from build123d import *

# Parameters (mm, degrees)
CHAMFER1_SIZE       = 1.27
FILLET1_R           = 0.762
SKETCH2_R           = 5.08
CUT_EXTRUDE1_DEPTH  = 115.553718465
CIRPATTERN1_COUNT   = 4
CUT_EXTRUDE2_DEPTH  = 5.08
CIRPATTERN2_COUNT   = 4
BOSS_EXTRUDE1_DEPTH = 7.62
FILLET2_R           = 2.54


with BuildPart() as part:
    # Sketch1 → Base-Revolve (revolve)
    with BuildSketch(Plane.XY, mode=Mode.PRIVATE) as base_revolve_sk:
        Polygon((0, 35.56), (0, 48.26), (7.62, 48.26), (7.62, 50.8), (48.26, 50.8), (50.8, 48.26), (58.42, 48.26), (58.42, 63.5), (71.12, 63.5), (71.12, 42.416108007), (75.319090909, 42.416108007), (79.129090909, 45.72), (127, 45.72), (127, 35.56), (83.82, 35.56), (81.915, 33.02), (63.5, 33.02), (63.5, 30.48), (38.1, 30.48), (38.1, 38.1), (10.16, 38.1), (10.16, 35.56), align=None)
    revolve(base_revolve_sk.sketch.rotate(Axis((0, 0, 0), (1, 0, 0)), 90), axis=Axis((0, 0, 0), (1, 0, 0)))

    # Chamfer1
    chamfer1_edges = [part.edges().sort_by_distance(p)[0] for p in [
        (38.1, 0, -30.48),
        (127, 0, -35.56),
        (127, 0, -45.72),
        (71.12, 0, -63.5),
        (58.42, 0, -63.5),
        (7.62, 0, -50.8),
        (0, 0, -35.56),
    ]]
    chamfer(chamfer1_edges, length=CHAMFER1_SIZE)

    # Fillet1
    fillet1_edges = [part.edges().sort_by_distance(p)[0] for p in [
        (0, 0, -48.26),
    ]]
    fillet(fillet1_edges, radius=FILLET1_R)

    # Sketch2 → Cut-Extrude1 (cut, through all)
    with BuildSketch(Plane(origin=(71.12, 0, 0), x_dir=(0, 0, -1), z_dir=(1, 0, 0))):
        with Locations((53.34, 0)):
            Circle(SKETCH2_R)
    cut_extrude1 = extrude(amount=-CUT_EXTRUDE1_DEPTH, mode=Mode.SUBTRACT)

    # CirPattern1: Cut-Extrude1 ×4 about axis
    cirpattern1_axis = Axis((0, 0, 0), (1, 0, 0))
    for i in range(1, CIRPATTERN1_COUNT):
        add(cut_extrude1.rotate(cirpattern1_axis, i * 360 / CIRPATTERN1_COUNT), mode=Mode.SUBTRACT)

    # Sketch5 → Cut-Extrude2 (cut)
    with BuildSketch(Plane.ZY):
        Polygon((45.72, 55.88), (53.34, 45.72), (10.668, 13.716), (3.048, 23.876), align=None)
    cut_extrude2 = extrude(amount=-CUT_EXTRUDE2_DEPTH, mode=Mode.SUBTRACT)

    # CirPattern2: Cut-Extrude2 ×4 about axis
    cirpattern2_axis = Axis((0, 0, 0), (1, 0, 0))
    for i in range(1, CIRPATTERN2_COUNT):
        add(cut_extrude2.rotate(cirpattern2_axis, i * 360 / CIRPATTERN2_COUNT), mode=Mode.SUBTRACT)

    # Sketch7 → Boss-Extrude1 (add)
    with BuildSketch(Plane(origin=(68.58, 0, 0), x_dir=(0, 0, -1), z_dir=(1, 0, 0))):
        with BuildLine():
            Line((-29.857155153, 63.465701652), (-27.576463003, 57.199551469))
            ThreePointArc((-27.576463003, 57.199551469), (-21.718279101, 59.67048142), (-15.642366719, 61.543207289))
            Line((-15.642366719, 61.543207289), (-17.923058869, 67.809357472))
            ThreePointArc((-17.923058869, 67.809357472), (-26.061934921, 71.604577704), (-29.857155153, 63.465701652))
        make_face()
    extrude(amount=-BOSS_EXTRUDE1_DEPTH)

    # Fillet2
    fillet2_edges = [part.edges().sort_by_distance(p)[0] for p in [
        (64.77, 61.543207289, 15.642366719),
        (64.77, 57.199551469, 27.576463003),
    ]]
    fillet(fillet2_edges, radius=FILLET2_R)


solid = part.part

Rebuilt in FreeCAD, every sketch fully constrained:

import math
import FreeCAD as App
import Part
import Sketcher

V = App.Vector
Q = App.Units.Quantity


def edges_at(feature, points):
    """Names of the edges that pass closest to the given points."""
    edges = feature.Shape.Edges
    near = lambda p: min(range(len(edges)), key=lambda i: edges[i].distToShape(Part.Vertex(*p))[0])
    return sorted({f"Edge{near(p) + 1}" for p in points})


def add_polygon(sketch, points):
    """Adds a closed chain of lines whose ends are joined by coincident constraints."""
    first, n = sketch.GeometryCount, len(points)
    for a, b in zip(points, points[1:] + points[:1]):
        sketch.addGeometry(Part.LineSegment(App.Vector(*a, 0), App.Vector(*b, 0)), False)
    for i in range(n):
        sketch.addConstraint(Sketcher.Constraint("Coincident", first + i, 2, first + (i + 1) % n, 1))

doc = App.newDocument("Part")
params = doc.addObject("Spreadsheet::Sheet", "Params")
for row, (alias, value) in enumerate([
    ("sketch1_width", "1 in"),
    ("sketch1_width2", "0.4 in"),
    ("sketch1_width3", "1.1 in"),
    ("sketch1_width4", "1.7 in"),
    ("sketch1_width5", "0.5 in"),
    ("revolution_angle", "360 deg"),
    ("chamfer_size", "0.05 in"),
    ("fillet_radius", "0.03 in"),
    ("sketch2_diameter", "0.4 in"),
    ("sketch3_length", "0.5 in"),
    ("sketch3_length2", "2.1 in"),
    ("pocket2_length", "0.2 in"),
    ("sketch4_radius", "2.5 in"),
    ("sketch4_radius2", "0.25 in"),
    ("pad1_length", "0.3 in"),
    ("fillet2_radius", "0.1 in"),
], start=1):
    params.set(f"A{row}", alias)
    params.set(f"B{row}", "=" + value)
    params.setAlias(f"B{row}", alias)

body = doc.addObject("PartDesign::Body", "Body")

sketch1 = body.newObject("Sketcher::SketchObject", "Sketch")
sketch1.AttachmentSupport = (doc.getObject("XY_Plane"), [""])
sketch1.MapMode = "FlatFace"
add_polygon(sketch1, [(0, 48.26), (0, 35.56), (10.16, 35.56), (10.16, 38.1), (38.1, 38.1), (38.1, 30.48), (63.5, 30.48), (63.5, 33.02), (81.915, 33.02), (83.82, 35.56), (127, 35.56), (127, 45.72), (79.129091, 45.72), (75.319091, 42.416108), (71.12, 42.416108), (71.12, 63.5), (58.42, 63.5), (58.42, 48.26), (50.8, 48.26), (48.26, 50.8), (7.62, 50.8), (7.62, 48.26)])
sketch1.addConstraint(Sketcher.Constraint("Vertical", 0))
sketch1.addConstraint(Sketcher.Constraint("Horizontal", 1))
sketch1.addConstraint(Sketcher.Constraint("Vertical", 2))
sketch1.addConstraint(Sketcher.Constraint("Horizontal", 3))
sketch1.addConstraint(Sketcher.Constraint("Vertical", 4))
sketch1.addConstraint(Sketcher.Constraint("Horizontal", 5))
sketch1.addConstraint(Sketcher.Constraint("Vertical", 6))
sketch1.addConstraint(Sketcher.Constraint("Horizontal", 7))
sketch1.addConstraint(Sketcher.Constraint("Horizontal", 9))
sketch1.addConstraint(Sketcher.Constraint("Vertical", 10))
sketch1.addConstraint(Sketcher.Constraint("Horizontal", 11))
sketch1.addConstraint(Sketcher.Constraint("Horizontal", 13))
sketch1.addConstraint(Sketcher.Constraint("Vertical", 14))
sketch1.addConstraint(Sketcher.Constraint("Horizontal", 15))
sketch1.addConstraint(Sketcher.Constraint("Vertical", 16))
sketch1.addConstraint(Sketcher.Constraint("Horizontal", 17))
sketch1.addConstraint(Sketcher.Constraint("Horizontal", 19))
sketch1.addConstraint(Sketcher.Constraint("Vertical", 20))
sketch1.addConstraint(Sketcher.Constraint("Horizontal", 21))
sketch1.addConstraint(Sketcher.Constraint("PointOnObject", 0, 2, -2))
sketch1.addConstraint(Sketcher.Constraint("Horizontal", 1, 2, 8, 2))
sketch1.addConstraint(Sketcher.Constraint("Horizontal", 17, 2, 20, 2))
sketch1.addConstraint(Sketcher.Constraint("Equal", 17, 21))
sketch1.addConstraint(Sketcher.Constraint("Equal", 15, 0))
sketch1.addConstraint(Sketcher.Constraint("Equal", 21, 4))
sketch1.addConstraint(Sketcher.Constraint("Equal", 2, 6))
sketch1.addConstraint(Sketcher.Constraint("Equal", 1, 10))
sketch1.addConstraint(Sketcher.Constraint("Equal", 6, 20))
sketch1.addConstraint(Sketcher.Constraint("DistanceX", 5, 1, 5, 2, Q("1 in")))
sketch1.addConstraint(Sketcher.Constraint("DistanceX", 1, 1, 1, 2, Q("0.4 in")))
sketch1.addConstraint(Sketcher.Constraint("DistanceX", 3, 1, 3, 2, Q("1.1 in")))
sketch1.addConstraint(Sketcher.Constraint("DistanceX", 9, 1, 9, 2, Q("1.7 in")))
sketch1.addConstraint(Sketcher.Constraint("DistanceX", 15, 2, 15, 1, Q("0.5 in")))
sketch1.addConstraint(Sketcher.Constraint("DistanceX", 17, 2, 17, 1, Q("0.3 in")))
sketch1.addConstraint(Sketcher.Constraint("DistanceX", 19, 2, 19, 1, Q("1.6 in")))
sketch1.addConstraint(Sketcher.Constraint("DistanceY", 2, 1, 2, 2, Q("0.1 in")))
sketch1.addConstraint(Sketcher.Constraint("DistanceY", 16, 2, 16, 1, Q("0.6 in")))
sketch1.addConstraint(Sketcher.Constraint("DistanceX", -1, 1, 9, 2, Q("5 in")))
sketch1.addConstraint(Sketcher.Constraint("DistanceX", -1, 1, 17, 2, Q("2 in")))
sketch1.addConstraint(Sketcher.Constraint("DistanceY", -1, 1, 18, 2, Q("2 in")))
sketch1.addConstraint(Sketcher.Constraint("DistanceX", 7, 1, 7, 2, Q("0.725 in")))
sketch1.addConstraint(Sketcher.Constraint("DistanceX", 12, 2, 11, 2, Q("0.15 in")))
sketch1.addConstraint(Sketcher.Constraint("DistanceX", 11, 2, 11, 1, 47.870909))
sketch1.addConstraint(Sketcher.Constraint("DistanceY", 14, 1, 14, 2, 21.083892))
sketch1.setExpression("Constraints[50]", "Params.sketch1_width")
sketch1.setExpression("Constraints[51]", "Params.sketch1_width2")
sketch1.setExpression("Constraints[52]", "Params.sketch1_width3")
sketch1.setExpression("Constraints[53]", "Params.sketch1_width4")
sketch1.setExpression("Constraints[54]", "Params.sketch1_width5")
revolution = body.newObject("PartDesign::Revolution", "Revolution")
revolution.Profile = sketch1
revolution.ReferenceAxis = (sketch1, ["H_Axis"])
revolution.setExpression("Angle", "Params.revolution_angle")
doc.recompute()

chamfer = body.newObject("PartDesign::Chamfer", "Chamfer")
chamfer.Base = (revolution, edges_at(revolution, [
    (38.1, 0, -30.48),
    (127, 0, -35.56),
    (127, 0, -45.72),
    (71.12, 0, -63.5),
    (58.42, 0, -63.5),
    (7.62, 0, -50.8),
    (0, 0, -35.56),
]))
chamfer.setExpression("Size", "Params.chamfer_size")
doc.recompute()

fillet = body.newObject("PartDesign::Fillet", "Fillet")
fillet.Base = (chamfer, edges_at(chamfer, [(0, 0, -48.26)]))
fillet.setExpression("Radius", "Params.fillet_radius")

sketch2 = body.newObject("Sketcher::SketchObject", "Sketch001")
sketch2.AttachmentSupport = (doc.getObject("YZ_Plane"), [""])
sketch2.MapMode = "FlatFace"
sketch2.AttachmentOffset = App.Placement(V(0, 0, 2.8 * 25.4), App.Rotation())
sketch2.addGeometry(Part.Circle(V(0, -53.34, 0), V(0, 0, 1), 5.08), False)
sketch2.addConstraint(Sketcher.Constraint("PointOnObject", 0, 3, -2))
sketch2.addConstraint(Sketcher.Constraint("Diameter", 0, Q("0.4 in")))
sketch2.addConstraint(Sketcher.Constraint("DistanceY", 0, 3, -1, 1, Q("2.1 in")))
sketch2.setExpression("Constraints[1]", "Params.sketch2_diameter")
pocket1 = body.newObject("PartDesign::Pocket", "Pocket")
pocket1.Profile = sketch2
pocket1.Type = "ThroughAll"
doc.recompute()

polarpattern = body.newObject("PartDesign::PolarPattern", "PolarPattern")
polarpattern.Originals = [pocket1]
polarpattern.Axis = (doc.getObject("X_Axis"), [""])
polarpattern.Angle = 360
polarpattern.Occurrences = 4
body.Tip = polarpattern

sketch3 = body.newObject("Sketcher::SketchObject", "Sketch002")
sketch3.AttachmentSupport = (doc.getObject("YZ_Plane"), [""])
sketch3.MapMode = "FlatFace"
add_polygon(sketch3, [(45.72, 53.34), (55.88, 45.72), (23.876, 3.048), (13.716, 10.668)])
sketch3.addConstraint(Sketcher.Constraint("Perpendicular", 0, 1))
sketch3.addConstraint(Sketcher.Constraint("Perpendicular", 1, 2))
sketch3.addConstraint(Sketcher.Constraint("Perpendicular", 2, 3))
sketch3.addConstraint(Sketcher.Constraint("Distance", 0, Q("0.5 in")))
sketch3.addConstraint(Sketcher.Constraint("Distance", 1, Q("2.1 in")))
sketch3.addConstraint(Sketcher.Constraint("DistanceX", -1, 1, 0, 2, Q("2.2 in")))
sketch3.addConstraint(Sketcher.Constraint("DistanceY", -1, 1, 0, 2, Q("1.8 in")))
sketch3.addConstraint(Sketcher.Constraint("DistanceX", -1, 1, 3, 2, Q("1.8 in")))
sketch3.setExpression("Constraints[7]", "Params.sketch3_length")
sketch3.setExpression("Constraints[8]", "Params.sketch3_length2")
pocket2 = body.newObject("PartDesign::Pocket", "Pocket001")
pocket2.Profile = sketch3
pocket2.setExpression("Length", "Params.pocket2_length")
pocket2.Reversed = True
doc.recompute()

polarpattern2 = body.newObject("PartDesign::PolarPattern", "PolarPattern001")
polarpattern2.Originals = [pocket2]
polarpattern2.Axis = (doc.getObject("X_Axis"), [""])
polarpattern2.Angle = 360
polarpattern2.Occurrences = 4
body.Tip = polarpattern2

sketch4 = body.newObject("Sketcher::SketchObject", "Sketch003")
sketch4.AttachmentSupport = (doc.getObject("YZ_Plane"), [""])
sketch4.MapMode = "FlatFace"
sketch4.AttachmentOffset = App.Placement(V(0, 0, 2.7 * 25.4), App.Rotation())
sketch4.addGeometry(Part.LineSegment(V(63.465702, 29.857155, 0), V(57.199551, 27.576463, 0)), False)
sketch4.addGeometry(Part.ArcOfCircle(Part.Circle(V(0, 0, 0), V(0, 0, 1), 63.5), math.radians(14.26083), math.radians(25.73917)), False)
sketch4.addGeometry(Part.LineSegment(V(61.543207, 15.642367, 0), V(67.809357, 17.923059, 0)), False)
sketch4.addGeometry(Part.ArcOfCircle(Part.Circle(V(65.63753, 23.890107, 0), V(0, 0, 1), 6.35), math.radians(-70), math.radians(110)), False)
sketch4.addConstraint(Sketcher.Constraint("Coincident", 0, 2, 1, 2))
sketch4.addConstraint(Sketcher.Constraint("Coincident", 1, 1, 2, 1))
sketch4.addConstraint(Sketcher.Constraint("Tangent", 2, 2, 3, 1))
sketch4.addConstraint(Sketcher.Constraint("Tangent", 3, 2, 0, 1))
sketch4.addConstraint(Sketcher.Constraint("Coincident", 1, 3, -1, 1))
sketch4.addConstraint(Sketcher.Constraint("Parallel", 0, 2))
sketch4.addConstraint(Sketcher.Constraint("Equal", 0, 2))
sketch4.addConstraint(Sketcher.Constraint("Radius", 1, Q("2.5 in")))
sketch4.addConstraint(Sketcher.Constraint("Radius", 3, Q("0.25 in")))
sketch4.addConstraint(Sketcher.Constraint("Angle", 0, Q("-160 deg")))
sketch4.addConstraint(Sketcher.Constraint("DistanceX", -1, 1, 3, 2, 63.465702))
sketch4.setExpression("Constraints[7]", "Params.sketch4_radius")
sketch4.setExpression("Constraints[8]", "Params.sketch4_radius2")
pad1 = body.newObject("PartDesign::Pad", "Pad")
pad1.Profile = sketch4
pad1.setExpression("Length", "Params.pad1_length")
pad1.Reversed = True
doc.recompute()

fillet2 = body.newObject("PartDesign::Fillet", "Fillet001")
fillet2.Base = (pad1, edges_at(pad1, [(64.77, 61.543, 15.642), (64.77, 57.2, 27.576)]))
fillet2.setExpression("Radius", "Params.fillet2_radius")

doc.recompute()
